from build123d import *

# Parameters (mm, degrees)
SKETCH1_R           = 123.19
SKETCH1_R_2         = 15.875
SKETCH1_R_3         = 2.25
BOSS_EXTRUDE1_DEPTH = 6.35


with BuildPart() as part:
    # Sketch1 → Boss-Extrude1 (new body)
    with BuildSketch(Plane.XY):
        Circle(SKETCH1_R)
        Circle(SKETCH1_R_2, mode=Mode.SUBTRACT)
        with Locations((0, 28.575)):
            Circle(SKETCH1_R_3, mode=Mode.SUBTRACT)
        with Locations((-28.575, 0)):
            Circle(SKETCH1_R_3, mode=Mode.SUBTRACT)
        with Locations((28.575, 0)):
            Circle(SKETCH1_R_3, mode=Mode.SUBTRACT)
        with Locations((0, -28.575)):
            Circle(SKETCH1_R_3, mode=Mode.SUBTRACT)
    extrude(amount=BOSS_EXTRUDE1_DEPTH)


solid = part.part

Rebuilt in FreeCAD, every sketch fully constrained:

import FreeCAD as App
import Part
import Sketcher
Q = App.Units.Quantity

doc = App.newDocument("Part")
body = doc.addObject("PartDesign::Body", "Body")

# Sketch on XY plane
sketch1 = body.newObject("Sketcher::SketchObject", "Sketch")
sketch1.AttachmentSupport = (doc.getObject("XY_Plane"), [""])
sketch1.MapMode = "FlatFace"
sketch1.addGeometry(Part.Circle(App.Vector(0, 0, 0), App.Vector(0, 0, 1), 123.2), False)
sketch1.addGeometry(Part.Circle(App.Vector(0, -28.6, 0), App.Vector(0, 0, 1), 2.2), False)
sketch1.addGeometry(Part.Circle(App.Vector(-28.6, 0, 0), App.Vector(0, 0, 1), 2.2), False)
sketch1.addGeometry(Part.Circle(App.Vector(0, 0, 0), App.Vector(0, 0, 1), 15.9), False)
sketch1.addGeometry(Part.Circle(App.Vector(28.6, 0, 0), App.Vector(0, 0, 1), 2.2), False)
sketch1.addGeometry(Part.Circle(App.Vector(0, 28.6, 0), App.Vector(0, 0, 1), 2.2), False)
sketch1.addConstraint(Sketcher.Constraint("Coincident", 0, 3, -1, 1))
sketch1.addConstraint(Sketcher.Constraint("Coincident", 3, 3, -1, 1))
sketch1.addConstraint(Sketcher.Constraint("Equal", 1, 2))
sketch1.addConstraint(Sketcher.Constraint("Equal", 2, 4))
sketch1.addConstraint(Sketcher.Constraint("Equal", 4, 5))
sketch1.addConstraint(Sketcher.Constraint("Symmetric", 2, 3, 4, 3, -1, 1))
sketch1.addConstraint(Sketcher.Constraint("Symmetric", 1, 3, 5, 3, -1, 1))
sketch1.addConstraint(Sketcher.Constraint("PointOnObject", 1, 3, -2))
sketch1.addConstraint(Sketcher.Constraint("PointOnObject", 2, 3, -1))
sketch1.addConstraint(Sketcher.Constraint("Diameter", 0, Q("9.7 in")))
sketch1.addConstraint(Sketcher.Constraint("Diameter", 3, Q("1.25 in")))
sketch1.addConstraint(Sketcher.Constraint("Diameter", 1, 4.5))
sketch1.addConstraint(Sketcher.Constraint("DistanceX", 2, 3, 4, 3, Q("2.25 in")))
sketch1.addConstraint(Sketcher.Constraint("DistanceY", 1, 3, 5, 3, Q("2.25 in")))
pad1 = body.newObject("PartDesign::Pad", "Pad")
pad1.Profile = sketch1
pad1.Length = Q("0.25 in")

doc.recompute()
